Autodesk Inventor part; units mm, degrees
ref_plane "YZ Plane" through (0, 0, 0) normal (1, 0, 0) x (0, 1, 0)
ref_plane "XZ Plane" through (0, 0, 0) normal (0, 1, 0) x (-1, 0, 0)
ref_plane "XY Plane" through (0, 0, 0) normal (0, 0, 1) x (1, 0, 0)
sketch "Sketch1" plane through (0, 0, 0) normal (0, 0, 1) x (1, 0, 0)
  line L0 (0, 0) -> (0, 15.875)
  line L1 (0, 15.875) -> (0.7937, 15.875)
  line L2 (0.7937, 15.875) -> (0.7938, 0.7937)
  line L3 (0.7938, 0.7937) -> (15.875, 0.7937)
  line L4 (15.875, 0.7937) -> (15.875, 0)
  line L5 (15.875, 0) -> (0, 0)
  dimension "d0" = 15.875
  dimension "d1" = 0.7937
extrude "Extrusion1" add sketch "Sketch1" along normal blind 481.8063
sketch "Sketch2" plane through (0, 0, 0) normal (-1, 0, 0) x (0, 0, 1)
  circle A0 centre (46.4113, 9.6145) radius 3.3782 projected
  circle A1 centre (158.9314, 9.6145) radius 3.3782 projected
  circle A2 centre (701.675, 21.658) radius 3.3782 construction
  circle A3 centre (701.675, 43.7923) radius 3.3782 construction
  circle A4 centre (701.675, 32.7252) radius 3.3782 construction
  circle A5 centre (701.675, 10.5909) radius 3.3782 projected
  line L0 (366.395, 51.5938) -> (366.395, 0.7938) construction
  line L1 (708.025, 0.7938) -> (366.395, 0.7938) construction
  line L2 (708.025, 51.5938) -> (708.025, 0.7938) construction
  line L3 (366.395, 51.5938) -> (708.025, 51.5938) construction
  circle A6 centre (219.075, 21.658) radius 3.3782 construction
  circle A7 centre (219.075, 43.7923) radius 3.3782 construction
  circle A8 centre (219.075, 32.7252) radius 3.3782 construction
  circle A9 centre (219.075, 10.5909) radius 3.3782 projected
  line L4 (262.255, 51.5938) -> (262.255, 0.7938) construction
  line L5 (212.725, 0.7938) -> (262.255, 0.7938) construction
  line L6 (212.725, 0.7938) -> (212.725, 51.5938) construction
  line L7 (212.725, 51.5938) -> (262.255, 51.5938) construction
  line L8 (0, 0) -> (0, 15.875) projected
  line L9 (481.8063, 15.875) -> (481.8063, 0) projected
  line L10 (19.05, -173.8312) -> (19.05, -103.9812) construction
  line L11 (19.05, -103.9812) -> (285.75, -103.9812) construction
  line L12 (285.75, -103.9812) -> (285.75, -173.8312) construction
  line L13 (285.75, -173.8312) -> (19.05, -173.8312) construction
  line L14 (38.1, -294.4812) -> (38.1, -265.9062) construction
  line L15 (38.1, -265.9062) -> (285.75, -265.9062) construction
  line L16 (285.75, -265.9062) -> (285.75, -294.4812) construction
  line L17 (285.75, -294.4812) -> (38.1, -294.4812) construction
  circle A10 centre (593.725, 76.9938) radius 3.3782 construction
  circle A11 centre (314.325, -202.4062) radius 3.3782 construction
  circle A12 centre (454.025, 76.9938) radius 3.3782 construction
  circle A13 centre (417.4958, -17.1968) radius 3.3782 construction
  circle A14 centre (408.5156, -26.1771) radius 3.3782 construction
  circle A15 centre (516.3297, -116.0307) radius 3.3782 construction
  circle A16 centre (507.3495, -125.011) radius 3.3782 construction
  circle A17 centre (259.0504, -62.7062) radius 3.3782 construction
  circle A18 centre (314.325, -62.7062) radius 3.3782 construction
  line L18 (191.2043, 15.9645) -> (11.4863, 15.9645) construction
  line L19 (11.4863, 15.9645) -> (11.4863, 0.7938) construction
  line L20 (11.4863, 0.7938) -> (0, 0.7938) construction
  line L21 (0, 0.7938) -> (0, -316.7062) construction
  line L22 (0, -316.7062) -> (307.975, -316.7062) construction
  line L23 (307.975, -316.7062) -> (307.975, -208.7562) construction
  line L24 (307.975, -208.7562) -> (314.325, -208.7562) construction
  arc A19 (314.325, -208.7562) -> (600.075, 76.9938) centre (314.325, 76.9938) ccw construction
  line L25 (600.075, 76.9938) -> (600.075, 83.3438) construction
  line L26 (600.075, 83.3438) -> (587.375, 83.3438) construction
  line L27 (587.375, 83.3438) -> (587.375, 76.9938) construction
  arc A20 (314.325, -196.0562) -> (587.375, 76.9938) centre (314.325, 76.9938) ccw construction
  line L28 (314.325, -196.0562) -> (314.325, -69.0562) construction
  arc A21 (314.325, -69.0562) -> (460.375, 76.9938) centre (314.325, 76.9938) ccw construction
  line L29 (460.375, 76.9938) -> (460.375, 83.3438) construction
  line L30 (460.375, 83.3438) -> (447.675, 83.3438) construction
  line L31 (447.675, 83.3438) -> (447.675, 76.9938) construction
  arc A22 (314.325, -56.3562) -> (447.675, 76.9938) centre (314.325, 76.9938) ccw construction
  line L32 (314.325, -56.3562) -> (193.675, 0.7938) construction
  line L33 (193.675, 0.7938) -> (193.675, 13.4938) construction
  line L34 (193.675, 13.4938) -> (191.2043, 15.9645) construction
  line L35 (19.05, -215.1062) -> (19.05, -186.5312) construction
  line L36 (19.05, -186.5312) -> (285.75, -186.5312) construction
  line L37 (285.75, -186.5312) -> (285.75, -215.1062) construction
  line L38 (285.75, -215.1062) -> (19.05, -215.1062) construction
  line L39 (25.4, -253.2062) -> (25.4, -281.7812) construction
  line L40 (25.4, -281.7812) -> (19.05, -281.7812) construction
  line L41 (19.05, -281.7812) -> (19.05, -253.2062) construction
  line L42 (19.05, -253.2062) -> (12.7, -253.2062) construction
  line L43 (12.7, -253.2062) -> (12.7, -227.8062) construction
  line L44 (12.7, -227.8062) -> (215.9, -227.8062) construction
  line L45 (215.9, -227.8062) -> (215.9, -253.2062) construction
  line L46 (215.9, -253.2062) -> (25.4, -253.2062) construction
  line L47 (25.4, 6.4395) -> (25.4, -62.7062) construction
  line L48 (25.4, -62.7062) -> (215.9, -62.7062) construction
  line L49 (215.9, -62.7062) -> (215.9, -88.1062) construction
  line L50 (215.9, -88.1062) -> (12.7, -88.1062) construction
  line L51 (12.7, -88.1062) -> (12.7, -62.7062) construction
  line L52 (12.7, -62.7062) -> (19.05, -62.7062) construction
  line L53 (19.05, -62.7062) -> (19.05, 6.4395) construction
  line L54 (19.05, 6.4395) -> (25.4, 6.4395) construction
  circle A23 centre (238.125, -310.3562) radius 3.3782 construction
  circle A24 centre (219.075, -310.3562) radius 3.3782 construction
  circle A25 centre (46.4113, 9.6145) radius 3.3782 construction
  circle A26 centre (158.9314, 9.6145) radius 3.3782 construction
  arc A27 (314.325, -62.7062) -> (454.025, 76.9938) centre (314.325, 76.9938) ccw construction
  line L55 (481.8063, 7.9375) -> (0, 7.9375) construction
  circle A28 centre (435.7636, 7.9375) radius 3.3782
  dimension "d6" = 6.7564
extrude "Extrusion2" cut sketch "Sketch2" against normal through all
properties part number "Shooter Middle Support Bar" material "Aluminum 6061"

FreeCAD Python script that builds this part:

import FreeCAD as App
import Part
import Sketcher

V = App.Vector
Q = App.Units.Quantity

doc = App.newDocument("Part")
body = doc.addObject("PartDesign::Body", "Body")

sketch1 = body.newObject("Sketcher::SketchObject", "Sketch")
sketch1.AttachmentSupport = (doc.getObject("XY_Plane"), [""])
sketch1.MapMode = "FlatFace"
sketch1.addGeometry([
    Part.LineSegment(V(0, 15.9, 0), V(0, 0, 0)),
    Part.LineSegment(V(0, 0, 0), V(15.9, 0, 0)),
    Part.LineSegment(V(15.9, 0, 0), V(15.9, 0.8, 0)),
    Part.LineSegment(V(15.9, 0.8, 0), V(0.8, 0.8, 0)),
    Part.LineSegment(V(0.8, 0.8, 0), V(0.8, 15.9, 0)),
    Part.LineSegment(V(0.8, 15.9, 0), V(0, 15.9, 0)),
], False)
sketch1.addConstraint([
    Sketcher.Constraint("Coincident", 0, 2, 1, 1),
    Sketcher.Constraint("Coincident", 1, 2, 2, 1),
    Sketcher.Constraint("Coincident", 2, 2, 3, 1),
    Sketcher.Constraint("Coincident", 3, 2, 4, 1),
    Sketcher.Constraint("Coincident", 4, 2, 5, 1),
    Sketcher.Constraint("Coincident", 5, 2, 0, 1),
    Sketcher.Constraint("Vertical", 0),
    Sketcher.Constraint("Horizontal", 1),
    Sketcher.Constraint("Vertical", 2),
    Sketcher.Constraint("Horizontal", 3),
    Sketcher.Constraint("Vertical", 4),
    Sketcher.Constraint("Horizontal", 5),
    Sketcher.Constraint("Coincident", 0, 2, -1, 1),
    Sketcher.Constraint("Equal", 1, 0),
    Sketcher.Constraint("Equal", 5, 2),
    Sketcher.Constraint("DistanceX", 1, 1, 1, 2, Q("0.625 in")),
    Sketcher.Constraint("DistanceX", 5, 2, 5, 1, Q("0.031248 in")),
])
pad1 = body.newObject("PartDesign::Pad", "Pad")
pad1.Profile = sketch1
pad1.Length = Q("18.968752 in")

sketch2 = body.newObject("Sketcher::SketchObject", "Sketch001")
sketch2.AttachmentSupport = (doc.getObject("YZ_Plane"), [""])
sketch2.MapMode = "FlatFace"
sketch2.addGeometry([
    Part.Circle(V(9.6, 46.4, 0), V(0, 0, 1), 3.4),
    Part.Circle(V(9.6, 158.9, 0), V(0, 0, 1), 3.4),
    Part.Circle(V(10.6, 701.7, 0), V(0, 0, 1), 3.4),
    Part.Circle(V(10.6, 219.1, 0), V(0, 0, 1), 3.4),
    Part.Circle(V(7.9, 435.8, 0), V(0, 0, 1), 3.4),
], False)
sketch2.addConstraint([
    Sketcher.Constraint("Equal", 0, 1),
    Sketcher.Constraint("Equal", 1, 2),
    Sketcher.Constraint("Equal", 2, 3),
    Sketcher.Constraint("Equal", 3, 4),
    Sketcher.Constraint("Vertical", 0, 3, 1, 3),
    Sketcher.Constraint("Vertical", 2, 3, 3, 3),
    Sketcher.Constraint("Diameter", 0, Q("0.266 in")),
    Sketcher.Constraint("DistanceY", 3, 3, 2, 3, Q("19 in")),
    Sketcher.Constraint("DistanceY", -1, 1, 2, 3, Q("27.625 in")),
    Sketcher.Constraint("DistanceX", -1, 1, 4, 3, Q("0.3125 in")),
    Sketcher.Constraint("DistanceY", 1, 3, 4, 3, Q("10.8989 in")),
    Sketcher.Constraint("DistanceX", -1, 1, 0, 3, Q("9.6145 mm")),
    Sketcher.Constraint("DistanceY", -1, 1, 0, 3, Q("46.4113 mm")),
    Sketcher.Constraint("DistanceY", -1, 1, 1, 3, Q("158.9314 mm")),
    Sketcher.Constraint("DistanceX", -1, 1, 2, 3, Q("10.591 mm")),
])
pocket1 = body.newObject("PartDesign::Pocket", "Pocket")
pocket1.Profile = sketch2
pocket1.Type = "ThroughAll"
pocket1.Reversed = True

doc.recompute()
